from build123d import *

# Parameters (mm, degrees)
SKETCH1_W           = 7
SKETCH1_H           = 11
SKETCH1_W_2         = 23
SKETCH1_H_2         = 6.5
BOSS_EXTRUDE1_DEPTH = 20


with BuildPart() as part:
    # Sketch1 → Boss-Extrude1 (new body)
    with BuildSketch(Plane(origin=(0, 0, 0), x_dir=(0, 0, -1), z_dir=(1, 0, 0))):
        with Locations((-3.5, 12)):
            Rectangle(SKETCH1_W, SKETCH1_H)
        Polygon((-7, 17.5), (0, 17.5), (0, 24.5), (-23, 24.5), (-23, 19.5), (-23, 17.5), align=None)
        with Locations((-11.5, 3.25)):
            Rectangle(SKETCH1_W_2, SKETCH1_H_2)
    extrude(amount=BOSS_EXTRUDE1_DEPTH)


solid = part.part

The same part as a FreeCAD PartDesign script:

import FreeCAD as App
import Part
import Sketcher
from FreeCAD import Vector
Q = App.Units.Quantity


def add_polygon(sketch, points):
    """Adds a closed chain of lines whose ends are joined by coincident constraints."""
    first, n = sketch.GeometryCount, len(points)
    for a, b in zip(points, points[1:] + points[:1]):
        sketch.addGeometry(Part.LineSegment(App.Vector(*a, 0), App.Vector(*b, 0)), False)
    for i in range(n):
        sketch.addConstraint(Sketcher.Constraint("Coincident", first + i, 2, first + (i + 1) % n, 1))

doc = App.newDocument("Part")
body = doc.addObject("PartDesign::Body", "Body")

# Sketch on YZ plane
sketch1 = body.newObject("Sketcher::SketchObject", "Sketch")
sketch1.AttachmentSupport = (doc.getObject("YZ_Plane"), [""])
sketch1.MapMode = "FlatFace"
add_polygon(sketch1, [(17.5, 7), (6.5, 7), (6.5, 23), (0, 23), (0, 0), (24.5, 0), (24.5, 23), (17.5, 23)])  # lines 0-7
sketch1.addConstraint(Sketcher.Constraint("Horizontal", 0))
sketch1.addConstraint(Sketcher.Constraint("Vertical", 1))
sketch1.addConstraint(Sketcher.Constraint("Horizontal", 2))
sketch1.addConstraint(Sketcher.Constraint("Vertical", 3))
sketch1.addConstraint(Sketcher.Constraint("Horizontal", 4))
sketch1.addConstraint(Sketcher.Constraint("Vertical", 5))
sketch1.addConstraint(Sketcher.Constraint("Horizontal", 6))
sketch1.addConstraint(Sketcher.Constraint("Vertical", 7))
sketch1.addConstraint(Sketcher.Constraint("Coincident", 3, 2, -1, 1))
sketch1.addConstraint(Sketcher.Constraint("Horizontal", 2, 2, 5, 2))
sketch1.addConstraint(Sketcher.Constraint("DistanceX", 0, 2, 0, 1, Q("11 mm")))
sketch1.addConstraint(Sketcher.Constraint("DistanceX", 6, 2, 6, 1, Q("7 mm")))
sketch1.addConstraint(Sketcher.Constraint("DistanceY", 1, 1, 1, 2, Q("16 mm")))
sketch1.addConstraint(Sketcher.Constraint("DistanceY", 3, 2, 3, 1, Q("23 mm")))
sketch1.addConstraint(Sketcher.Constraint("DistanceX", 2, 2, 2, 1, Q("6.5 mm")))
pad1 = body.newObject("PartDesign::Pad", "Pad")
pad1.Profile = sketch1
pad1.Length = 20

doc.recompute()
